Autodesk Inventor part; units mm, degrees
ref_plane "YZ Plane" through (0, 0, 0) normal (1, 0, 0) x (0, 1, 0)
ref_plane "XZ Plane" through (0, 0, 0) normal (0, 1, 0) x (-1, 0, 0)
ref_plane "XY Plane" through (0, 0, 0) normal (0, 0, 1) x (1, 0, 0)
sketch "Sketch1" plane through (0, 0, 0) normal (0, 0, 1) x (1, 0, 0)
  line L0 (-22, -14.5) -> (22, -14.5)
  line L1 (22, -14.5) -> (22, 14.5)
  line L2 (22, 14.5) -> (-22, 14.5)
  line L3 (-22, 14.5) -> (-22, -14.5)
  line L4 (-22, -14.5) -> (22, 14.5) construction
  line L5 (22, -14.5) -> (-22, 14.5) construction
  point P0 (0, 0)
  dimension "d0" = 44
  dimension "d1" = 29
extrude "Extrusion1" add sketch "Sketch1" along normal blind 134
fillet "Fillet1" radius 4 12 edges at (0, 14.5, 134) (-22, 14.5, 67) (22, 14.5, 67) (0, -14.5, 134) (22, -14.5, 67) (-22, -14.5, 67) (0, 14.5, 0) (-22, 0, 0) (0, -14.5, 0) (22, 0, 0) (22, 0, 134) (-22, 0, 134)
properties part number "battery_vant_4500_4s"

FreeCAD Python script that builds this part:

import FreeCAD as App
import Part
import Sketcher
Q = App.Units.Quantity


def add_polygon(sketch, points):
    """Adds a closed chain of lines whose ends are joined by coincident constraints."""
    first, n = sketch.GeometryCount, len(points)
    for a, b in zip(points, points[1:] + points[:1]):
        sketch.addGeometry(Part.LineSegment(App.Vector(*a, 0), App.Vector(*b, 0)), False)
    for i in range(n):
        sketch.addConstraint(Sketcher.Constraint("Coincident", first + i, 2, first + (i + 1) % n, 1))

doc = App.newDocument("Part")
body = doc.addObject("PartDesign::Body", "Body")

# Sketch on XY plane
sketch1 = body.newObject("Sketcher::SketchObject", "Sketch")
sketch1.AttachmentSupport = (doc.getObject("XY_Plane"), [""])
sketch1.MapMode = "FlatFace"
add_polygon(sketch1, [(-22, 14), (-22, -14), (22, -14), (22, 14)])  # lines 0-3
sketch1.addConstraint(Sketcher.Constraint("Vertical", 0))
sketch1.addConstraint(Sketcher.Constraint("Horizontal", 1))
sketch1.addConstraint(Sketcher.Constraint("Vertical", 2))
sketch1.addConstraint(Sketcher.Constraint("Horizontal", 3))
sketch1.addConstraint(Sketcher.Constraint("Symmetric", 0, 2, 2, 2, -1, 1))
sketch1.addConstraint(Sketcher.Constraint("DistanceX", 1, 1, 1, 2, Q("44 mm")))
sketch1.addConstraint(Sketcher.Constraint("DistanceY", 0, 2, 0, 1, Q("29 mm")))
pad1 = body.newObject("PartDesign::Pad", "Pad")
pad1.Profile = sketch1
pad1.Length = 134
doc.recompute()

fillet = body.newObject("PartDesign::Fillet", "Fillet")
fillet.Base = (pad1, ["Edge1"])
fillet.UseAllEdges = True
fillet.Radius = 4

doc.recompute()
